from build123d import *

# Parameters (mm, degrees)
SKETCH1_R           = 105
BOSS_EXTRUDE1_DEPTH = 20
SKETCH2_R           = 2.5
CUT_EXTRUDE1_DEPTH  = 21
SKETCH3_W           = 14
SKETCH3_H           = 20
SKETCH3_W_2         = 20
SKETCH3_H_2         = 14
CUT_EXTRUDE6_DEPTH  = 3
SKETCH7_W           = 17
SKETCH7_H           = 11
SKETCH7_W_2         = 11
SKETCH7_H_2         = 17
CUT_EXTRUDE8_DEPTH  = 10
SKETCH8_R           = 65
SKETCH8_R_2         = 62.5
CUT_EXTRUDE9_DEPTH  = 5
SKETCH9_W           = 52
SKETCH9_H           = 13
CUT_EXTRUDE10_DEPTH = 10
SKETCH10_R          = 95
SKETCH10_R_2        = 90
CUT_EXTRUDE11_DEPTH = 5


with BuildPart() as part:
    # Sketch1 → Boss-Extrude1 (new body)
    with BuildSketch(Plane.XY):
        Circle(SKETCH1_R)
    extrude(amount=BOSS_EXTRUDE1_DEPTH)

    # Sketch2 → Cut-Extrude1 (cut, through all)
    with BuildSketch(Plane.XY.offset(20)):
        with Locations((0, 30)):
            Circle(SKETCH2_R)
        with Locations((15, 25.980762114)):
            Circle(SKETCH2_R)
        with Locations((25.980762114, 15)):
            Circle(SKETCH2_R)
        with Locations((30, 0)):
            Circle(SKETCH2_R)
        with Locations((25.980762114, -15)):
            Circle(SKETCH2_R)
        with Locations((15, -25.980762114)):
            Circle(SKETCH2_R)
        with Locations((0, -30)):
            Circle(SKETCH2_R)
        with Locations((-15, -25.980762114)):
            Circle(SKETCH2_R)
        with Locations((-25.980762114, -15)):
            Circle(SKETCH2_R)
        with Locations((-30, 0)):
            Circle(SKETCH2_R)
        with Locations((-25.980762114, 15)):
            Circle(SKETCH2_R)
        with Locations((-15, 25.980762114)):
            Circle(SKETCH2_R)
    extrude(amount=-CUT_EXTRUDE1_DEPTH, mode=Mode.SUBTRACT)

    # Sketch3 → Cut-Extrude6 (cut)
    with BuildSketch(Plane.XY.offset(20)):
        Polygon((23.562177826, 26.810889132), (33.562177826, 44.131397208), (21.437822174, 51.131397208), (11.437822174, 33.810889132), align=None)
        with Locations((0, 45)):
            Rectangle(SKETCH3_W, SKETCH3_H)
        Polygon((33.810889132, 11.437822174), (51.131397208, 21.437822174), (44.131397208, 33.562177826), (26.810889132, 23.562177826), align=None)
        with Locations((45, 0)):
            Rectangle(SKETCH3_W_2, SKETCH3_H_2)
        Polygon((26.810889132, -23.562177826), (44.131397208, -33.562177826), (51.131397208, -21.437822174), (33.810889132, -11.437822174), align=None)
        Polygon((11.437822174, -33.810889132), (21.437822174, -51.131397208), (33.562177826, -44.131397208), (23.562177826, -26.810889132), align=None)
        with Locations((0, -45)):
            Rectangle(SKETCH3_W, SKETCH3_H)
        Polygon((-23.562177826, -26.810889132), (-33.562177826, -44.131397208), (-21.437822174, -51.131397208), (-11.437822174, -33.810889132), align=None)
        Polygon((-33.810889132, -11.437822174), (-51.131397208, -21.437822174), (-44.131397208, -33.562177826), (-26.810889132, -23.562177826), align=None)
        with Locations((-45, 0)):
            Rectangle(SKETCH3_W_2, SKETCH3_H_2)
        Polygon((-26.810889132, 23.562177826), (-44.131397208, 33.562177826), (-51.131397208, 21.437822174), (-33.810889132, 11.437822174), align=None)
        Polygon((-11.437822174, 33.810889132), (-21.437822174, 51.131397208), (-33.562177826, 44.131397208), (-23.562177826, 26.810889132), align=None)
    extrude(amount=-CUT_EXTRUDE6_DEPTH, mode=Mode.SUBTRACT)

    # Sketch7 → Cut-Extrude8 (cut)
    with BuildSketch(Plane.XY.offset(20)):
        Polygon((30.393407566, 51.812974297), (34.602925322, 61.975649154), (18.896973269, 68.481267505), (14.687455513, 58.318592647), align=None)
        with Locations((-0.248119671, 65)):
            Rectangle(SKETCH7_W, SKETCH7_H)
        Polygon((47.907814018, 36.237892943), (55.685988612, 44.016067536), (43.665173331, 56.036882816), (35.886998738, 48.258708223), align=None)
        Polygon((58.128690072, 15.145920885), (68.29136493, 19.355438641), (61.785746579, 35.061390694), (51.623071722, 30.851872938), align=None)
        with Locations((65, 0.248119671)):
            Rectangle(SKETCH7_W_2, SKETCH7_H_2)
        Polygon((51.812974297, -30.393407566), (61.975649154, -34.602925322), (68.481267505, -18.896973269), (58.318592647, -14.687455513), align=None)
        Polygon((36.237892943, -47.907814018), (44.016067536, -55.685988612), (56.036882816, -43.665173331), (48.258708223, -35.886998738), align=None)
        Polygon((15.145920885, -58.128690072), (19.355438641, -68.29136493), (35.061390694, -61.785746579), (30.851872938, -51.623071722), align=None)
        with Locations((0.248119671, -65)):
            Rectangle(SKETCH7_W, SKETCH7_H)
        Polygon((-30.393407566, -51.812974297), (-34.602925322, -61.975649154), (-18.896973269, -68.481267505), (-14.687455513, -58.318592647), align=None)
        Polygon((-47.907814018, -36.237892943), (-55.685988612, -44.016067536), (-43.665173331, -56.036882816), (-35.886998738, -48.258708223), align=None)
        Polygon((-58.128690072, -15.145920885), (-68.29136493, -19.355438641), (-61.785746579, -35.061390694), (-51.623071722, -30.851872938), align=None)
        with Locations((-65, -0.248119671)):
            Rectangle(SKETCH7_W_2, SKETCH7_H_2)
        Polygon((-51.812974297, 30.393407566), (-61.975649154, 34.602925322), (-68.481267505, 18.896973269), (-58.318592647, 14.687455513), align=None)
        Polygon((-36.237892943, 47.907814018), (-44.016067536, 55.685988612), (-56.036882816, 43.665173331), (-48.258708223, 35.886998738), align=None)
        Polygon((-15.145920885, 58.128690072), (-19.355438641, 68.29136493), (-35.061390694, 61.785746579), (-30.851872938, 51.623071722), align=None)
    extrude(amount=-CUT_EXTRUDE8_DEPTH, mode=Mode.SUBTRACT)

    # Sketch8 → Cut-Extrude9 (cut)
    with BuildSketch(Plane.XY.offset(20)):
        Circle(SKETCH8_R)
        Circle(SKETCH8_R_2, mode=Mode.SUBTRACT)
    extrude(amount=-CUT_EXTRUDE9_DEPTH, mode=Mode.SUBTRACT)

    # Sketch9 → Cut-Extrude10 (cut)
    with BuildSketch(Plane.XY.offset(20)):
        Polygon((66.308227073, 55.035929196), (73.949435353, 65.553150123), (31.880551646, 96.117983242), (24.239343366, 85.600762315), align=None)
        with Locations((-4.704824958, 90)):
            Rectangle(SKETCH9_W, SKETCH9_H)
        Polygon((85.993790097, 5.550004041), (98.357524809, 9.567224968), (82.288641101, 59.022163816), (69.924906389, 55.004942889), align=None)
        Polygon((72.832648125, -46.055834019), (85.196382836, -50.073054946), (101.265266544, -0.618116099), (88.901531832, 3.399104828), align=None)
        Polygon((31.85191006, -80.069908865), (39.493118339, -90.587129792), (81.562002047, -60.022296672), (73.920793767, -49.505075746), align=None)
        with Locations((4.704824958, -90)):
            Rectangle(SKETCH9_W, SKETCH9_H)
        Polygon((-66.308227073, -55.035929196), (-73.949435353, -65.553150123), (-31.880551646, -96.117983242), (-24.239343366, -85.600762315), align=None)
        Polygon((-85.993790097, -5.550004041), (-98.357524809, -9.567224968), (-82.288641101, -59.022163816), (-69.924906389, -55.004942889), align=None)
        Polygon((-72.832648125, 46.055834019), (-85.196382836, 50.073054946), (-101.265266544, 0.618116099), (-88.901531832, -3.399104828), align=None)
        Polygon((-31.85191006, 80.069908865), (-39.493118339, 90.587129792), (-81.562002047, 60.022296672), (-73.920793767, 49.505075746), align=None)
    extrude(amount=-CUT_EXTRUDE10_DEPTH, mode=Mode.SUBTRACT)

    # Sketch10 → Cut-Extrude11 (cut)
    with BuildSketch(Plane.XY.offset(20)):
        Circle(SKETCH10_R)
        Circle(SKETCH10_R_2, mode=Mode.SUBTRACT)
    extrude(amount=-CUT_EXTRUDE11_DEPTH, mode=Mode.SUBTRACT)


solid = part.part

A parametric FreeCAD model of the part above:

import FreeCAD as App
import Part
import Sketcher
from FreeCAD import Vector
Q = App.Units.Quantity

doc = App.newDocument("Part")
params = doc.addObject("Spreadsheet::Sheet", "Params")
for row, (alias, value) in enumerate([
    ("sketch1_diameter", "210 mm"),
    ("pad1_length", "20 mm"),
    ("sketch2_diameter", "5 mm"),
    ("sketch3_width", "14 mm"),
    ("sketch3_width2", "20 mm"),
    ("sketch3_length", "20 mm"),
    ("sketch3_length2", "14 mm"),
    ("pocket2_length", "3 mm"),
    ("sketch4_width", "17 mm"),
    ("sketch4_width2", "11 mm"),
    ("sketch4_length", "11 mm"),
    ("sketch4_length2", "17 mm"),
    ("pocket3_length", "10 mm"),
    ("sketch5_diameter", "130 mm"),
    ("sketch5_diameter2", "125 mm"),
    ("pocket4_length", "5 mm"),
    ("sketch6_width", "52 mm"),
    ("sketch6_height", "13 mm"),
    ("sketch6_length", "13 mm"),
    ("sketch6_length2", "52 mm"),
    ("pocket5_length", "10 mm"),
    ("sketch7_diameter", "190 mm"),
    ("sketch7_diameter2", "180 mm"),
    ("pocket6_length", "5 mm"),
], start=1):
    params.set(f"A{row}", alias)
    params.set(f"B{row}", "=" + value)
    params.setAlias(f"B{row}", alias)

body = doc.addObject("PartDesign::Body", "Body")

# Sketch on XY plane
sketch1 = body.newObject("Sketcher::SketchObject", "Sketch")
sketch1.AttachmentSupport = (doc.getObject("XY_Plane"), [""])
sketch1.MapMode = "FlatFace"
sketch1.addGeometry(Part.Circle(Vector(0, 0, 0), Vector(0, 0, 1), 105), False)
sketch1.addConstraint([
    Sketcher.Constraint("Coincident", 0, 3, -1, 1),
    Sketcher.Constraint("Diameter", 0, 210.0),
])
sketch1.setExpression("Constraints[1]", "Params.sketch1_diameter")
pad1 = body.newObject("PartDesign::Pad", "Pad")
pad1.Profile = sketch1
pad1.setExpression("Length", "Params.pad1_length")

# Sketch on XY plane
sketch2 = body.newObject("Sketcher::SketchObject", "Sketch001")
sketch2.AttachmentSupport = (doc.getObject("XY_Plane"), [""])
sketch2.MapMode = "FlatFace"
sketch2.AttachmentOffset = App.Placement(Vector(0, 0, 20), App.Rotation())
sketch2.addGeometry([
    Part.Circle(Vector(0, 30, 0), Vector(0, 0, 1), 2.5),  # 0
    Part.Circle(Vector(15, 26, 0), Vector(0, 0, 1), 2.5),  # 1
    Part.Circle(Vector(26, 15, 0), Vector(0, 0, 1), 2.5),  # 2
    Part.Circle(Vector(30, 0, 0), Vector(0, 0, 1), 2.5),  # 3
    Part.Circle(Vector(26, -15, 0), Vector(0, 0, 1), 2.5),  # 4
    Part.Circle(Vector(15, -26, 0), Vector(0, 0, 1), 2.5),  # 5
    Part.Circle(Vector(0, -30, 0), Vector(0, 0, 1), 2.5),  # 6
    Part.Circle(Vector(-15, -26, 0), Vector(0, 0, 1), 2.5),  # 7
    Part.Circle(Vector(-26, -15, 0), Vector(0, 0, 1), 2.5),  # 8
    Part.Circle(Vector(-30, 0, 0), Vector(0, 0, 1), 2.5),  # 9
    Part.Circle(Vector(-26, 15, 0), Vector(0, 0, 1), 2.5),  # 10
    Part.Circle(Vector(-15, 26, 0), Vector(0, 0, 1), 2.5),  # 11
], False)
sketch2.addConstraint([
    Sketcher.Constraint("Equal", 0, 1),
    Sketcher.Constraint("Equal", 1, 2),
    Sketcher.Constraint("Equal", 2, 3),
    Sketcher.Constraint("Equal", 3, 4),
    Sketcher.Constraint("Equal", 4, 5),
    Sketcher.Constraint("Equal", 5, 6),
    Sketcher.Constraint("Equal", 6, 7),
    Sketcher.Constraint("Equal", 7, 8),
    Sketcher.Constraint("Equal", 8, 9),
    Sketcher.Constraint("Equal", 9, 10),
    Sketcher.Constraint("Equal", 10, 11),
    Sketcher.Constraint("Symmetric", 0, 3, 6, 3, -1, 1),
    Sketcher.Constraint("Symmetric", 1, 3, 7, 3, -1, 1),
    Sketcher.Constraint("Symmetric", 2, 3, 8, 3, -1, 1),
    Sketcher.Constraint("Symmetric", 3, 3, 9, 3, -1, 1),
    Sketcher.Constraint("Symmetric", 4, 3, 10, 3, -1, 1),
    Sketcher.Constraint("Symmetric", 5, 3, 11, 3, -1, 1),
    Sketcher.Constraint("Symmetric", 5, 3, 7, 3, -2),
    Sketcher.Constraint("Symmetric", 4, 3, 8, 3, -2),
    Sketcher.Constraint("PointOnObject", 0, 3, -2),
    Sketcher.Constraint("PointOnObject", 3, 3, -1),
    Sketcher.Constraint("Diameter", 0, 5.0),
    Sketcher.Constraint("DistanceY", -1, 1, 0, 3, 30.0),
    Sketcher.Constraint("DistanceX", -1, 1, 1, 3, 15.0),
    Sketcher.Constraint("DistanceY", -1, 1, 2, 3, 15.0),
    Sketcher.Constraint("DistanceX", -1, 1, 3, 3, 30.0),
    Sketcher.Constraint("DistanceY", -1, 1, 1, 3, 25.980762),
    Sketcher.Constraint("DistanceX", -1, 1, 2, 3, 25.980762),
])
sketch2.setExpression("Constraints[21]", "Params.sketch2_diameter")
pocket1 = body.newObject("PartDesign::Pocket", "Pocket")
pocket1.Profile = sketch2
pocket1.Type = "ThroughAll"

# Sketch on XY plane
sketch3 = body.newObject("Sketcher::SketchObject", "Sketch002")
sketch3.AttachmentSupport = (doc.getObject("XY_Plane"), [""])
sketch3.MapMode = "FlatFace"
sketch3.AttachmentOffset = App.Placement(Vector(0, 0, 20), App.Rotation())
sketch3.addGeometry([
    Part.LineSegment(Vector(24, 27, 0), Vector(34, 44, 0)),  # 0
    Part.LineSegment(Vector(34, 44, 0), Vector(21, 51, 0)),  # 1
    Part.LineSegment(Vector(21, 51, 0), Vector(11, 34, 0)),  # 2
    Part.LineSegment(Vector(11, 34, 0), Vector(24, 27, 0)),  # 3
    Part.LineSegment(Vector(-7, 55, 0), Vector(-7, 35, 0)),  # 4
    Part.LineSegment(Vector(-7, 35, 0), Vector(7, 35, 0)),  # 5
    Part.LineSegment(Vector(7, 35, 0), Vector(7, 55, 0)),  # 6
    Part.LineSegment(Vector(7, 55, 0), Vector(-7, 55, 0)),  # 7
    Part.LineSegment(Vector(34, 11, 0), Vector(51, 21, 0)),  # 8
    Part.LineSegment(Vector(51, 21, 0), Vector(44, 34, 0)),  # 9
    Part.LineSegment(Vector(44, 34, 0), Vector(27, 24, 0)),  # 10
    Part.LineSegment(Vector(27, 24, 0), Vector(34, 11, 0)),  # 11
    Part.LineSegment(Vector(35, 7, 0), Vector(35, -7, 0)),  # 12
    Part.LineSegment(Vector(35, -7, 0), Vector(55, -7, 0)),  # 13
    Part.LineSegment(Vector(55, -7, 0), Vector(55, 7, 0)),  # 14
    Part.LineSegment(Vector(55, 7, 0), Vector(35, 7, 0)),  # 15
    Part.LineSegment(Vector(27, -24, 0), Vector(44, -34, 0)),  # 16
    Part.LineSegment(Vector(44, -34, 0), Vector(51, -21, 0)),  # 17
    Part.LineSegment(Vector(51, -21, 0), Vector(34, -11, 0)),  # 18
    Part.LineSegment(Vector(34, -11, 0), Vector(27, -24, 0)),  # 19
    Part.LineSegment(Vector(11, -34, 0), Vector(21, -51, 0)),  # 20
    Part.LineSegment(Vector(21, -51, 0), Vector(34, -44, 0)),  # 21
    Part.LineSegment(Vector(34, -44, 0), Vector(24, -27, 0)),  # 22
    Part.LineSegment(Vector(24, -27, 0), Vector(11, -34, 0)),  # 23
    Part.LineSegment(Vector(-7, -35, 0), Vector(-7, -55, 0)),  # 24
    Part.LineSegment(Vector(-7, -55, 0), Vector(7, -55, 0)),  # 25
    Part.LineSegment(Vector(7, -55, 0), Vector(7, -35, 0)),  # 26
    Part.LineSegment(Vector(7, -35, 0), Vector(-7, -35, 0)),  # 27
    Part.LineSegment(Vector(-24, -27, 0), Vector(-34, -44, 0)),  # 28
    Part.LineSegment(Vector(-34, -44, 0), Vector(-21, -51, 0)),  # 29
    Part.LineSegment(Vector(-21, -51, 0), Vector(-11, -34, 0)),  # 30
    Part.LineSegment(Vector(-11, -34, 0), Vector(-24, -27, 0)),  # 31
    Part.LineSegment(Vector(-34, -11, 0), Vector(-51, -21, 0)),  # 32
    Part.LineSegment(Vector(-51, -21, 0), Vector(-44, -34, 0)),  # 33
    Part.LineSegment(Vector(-44, -34, 0), Vector(-27, -24, 0)),  # 34
    Part.LineSegment(Vector(-27, -24, 0), Vector(-34, -11, 0)),  # 35
    Part.LineSegment(Vector(-55, 7, 0), Vector(-55, -7, 0)),  # 36
    Part.LineSegment(Vector(-55, -7, 0), Vector(-35, -7, 0)),  # 37
    Part.LineSegment(Vector(-35, -7, 0), Vector(-35, 7, 0)),  # 38
    Part.LineSegment(Vector(-35, 7, 0), Vector(-55, 7, 0)),  # 39
    Part.LineSegment(Vector(-27, 24, 0), Vector(-44, 34, 0)),  # 40
    Part.LineSegment(Vector(-44, 34, 0), Vector(-51, 21, 0)),  # 41
    Part.LineSegment(Vector(-51, 21, 0), Vector(-34, 11, 0)),  # 42
    Part.LineSegment(Vector(-34, 11, 0), Vector(-27, 24, 0)),  # 43
    Part.LineSegment(Vector(-11, 34, 0), Vector(-21, 51, 0)),  # 44
    Part.LineSegment(Vector(-21, 51, 0), Vector(-34, 44, 0)),  # 45
    Part.LineSegment(Vector(-34, 44, 0), Vector(-24, 27, 0)),  # 46
    Part.LineSegment(Vector(-24, 27, 0), Vector(-11, 34, 0)),  # 47
], False)
sketch3.addConstraint([
    Sketcher.Constraint("Coincident", 0, 2, 1, 1),
    Sketcher.Constraint("Coincident", 1, 2, 2, 1),
    Sketcher.Constraint("Coincident", 2, 2, 3, 1),
    Sketcher.Constraint("Coincident", 3, 2, 0, 1),
    Sketcher.Constraint("Coincident", 4, 2, 5, 1),
    Sketcher.Constraint("Coincident", 5, 2, 6, 1),
    Sketcher.Constraint("Coincident", 6, 2, 7, 1),
    Sketcher.Constraint("Coincident", 7, 2, 4, 1),
    Sketcher.Constraint("Coincident", 8, 2, 9, 1),
    Sketcher.Constraint("Coincident", 9, 2, 10, 1),
    Sketcher.Constraint("Coincident", 10, 2, 11, 1),
    Sketcher.Constraint("Coincident", 11, 2, 8, 1),
    Sketcher.Constraint("Coincident", 12, 2, 13, 1),
    Sketcher.Constraint("Coincident", 13, 2, 14, 1),
    Sketcher.Constraint("Coincident", 14, 2, 15, 1),
    Sketcher.Constraint("Coincident", 15, 2, 12, 1),
    Sketcher.Constraint("Coincident", 16, 2, 17, 1),
    Sketcher.Constraint("Coincident", 17, 2, 18, 1),
    Sketcher.Constraint("Coincident", 18, 2, 19, 1),
    Sketcher.Constraint("Coincident", 19, 2, 16, 1),
    Sketcher.Constraint("Coincident", 20, 2, 21, 1),
    Sketcher.Constraint("Coincident", 21, 2, 22, 1),
    Sketcher.Constraint("Coincident", 22, 2, 23, 1),
    Sketcher.Constraint("Coincident", 23, 2, 20, 1),
    Sketcher.Constraint("Coincident", 24, 2, 25, 1),
    Sketcher.Constraint("Coincident", 25, 2, 26, 1),
    Sketcher.Constraint("Coincident", 26, 2, 27, 1),
    Sketcher.Constraint("Coincident", 27, 2, 24, 1),
    Sketcher.Constraint("Coincident", 28, 2, 29, 1),
    Sketcher.Constraint("Coincident", 29, 2, 30, 1),
    Sketcher.Constraint("Coincident", 30, 2, 31, 1),
    Sketcher.Constraint("Coincident", 31, 2, 28, 1),
    Sketcher.Constraint("Coincident", 32, 2, 33, 1),
    Sketcher.Constraint("Coincident", 33, 2, 34, 1),
    Sketcher.Constraint("Coincident", 34, 2, 35, 1),
    Sketcher.Constraint("Coincident", 35, 2, 32, 1),
    Sketcher.Constraint("Coincident", 36, 2, 37, 1),
    Sketcher.Constraint("Coincident", 37, 2, 38, 1),
    Sketcher.Constraint("Coincident", 38, 2, 39, 1),
    Sketcher.Constraint("Coincident", 39, 2, 36, 1),
    Sketcher.Constraint("Coincident", 40, 2, 41, 1),
    Sketcher.Constraint("Coincident", 41, 2, 42, 1),
    Sketcher.Constraint("Coincident", 42, 2, 43, 1),
    Sketcher.Constraint("Coincident", 43, 2, 40, 1),
    Sketcher.Constraint("Coincident", 44, 2, 45, 1),
    Sketcher.Constraint("Coincident", 45, 2, 46, 1),
    Sketcher.Constraint("Coincident", 46, 2, 47, 1),
    Sketcher.Constraint("Coincident", 47, 2, 44, 1),
    Sketcher.Constraint("Vertical", 4),
    Sketcher.Constraint("Horizontal", 5),
    Sketcher.Constraint("Vertical", 6),
    Sketcher.Constraint("Horizontal", 7),
    Sketcher.Constraint("Vertical", 12),
    Sketcher.Constraint("Horizontal", 13),
    Sketcher.Constraint("Vertical", 14),
    Sketcher.Constraint("Horizontal", 15),
    Sketcher.Constraint("Vertical", 24),
    Sketcher.Constraint("Horizontal", 25),
    Sketcher.Constraint("Vertical", 26),
    Sketcher.Constraint("Horizontal", 27),
    Sketcher.Constraint("Vertical", 36),
    Sketcher.Constraint("Horizontal", 37),
    Sketcher.Constraint("Vertical", 38),
    Sketcher.Constraint("Horizontal", 39),
    Sketcher.Constraint("Symmetric", 6, 2, 24, 2, -1, 1),
    Sketcher.Constraint("Symmetric", 4, 2, 26, 2, -1, 1),
    Sketcher.Constraint("Symmetric", 0, 2, 28, 2, -1, 1),
    Sketcher.Constraint("Symmetric", 1, 2, 29, 2, -1, 1),
    Sketcher.Constraint("Symmetric", 2, 2, 30, 2, -1, 1),
    Sketcher.Constraint("Symmetric", 3, 2, 31, 2, -1, 1),
    Sketcher.Constraint("Symmetric", 8, 2, 32, 2, -1, 1),
    Sketcher.Constraint("Symmetric", 9, 2, 33, 2, -1, 1),
    Sketcher.Constraint("Symmetric", 10, 2, 34, 2, -1, 1),
    Sketcher.Constraint("Symmetric", 11, 2, 35, 2, -1, 1),
    Sketcher.Constraint("Symmetric", 14, 2, 36, 2, -1, 1),
    Sketcher.Constraint("Symmetric", 12, 2, 38, 2, -1, 1),
    Sketcher.Constraint("Symmetric", 16, 2, 40, 2, -1, 1),
    Sketcher.Constraint("Symmetric", 17, 2, 41, 2, -1, 1),
    Sketcher.Constraint("Symmetric", 18, 2, 42, 2, -1, 1),
    Sketcher.Constraint("Symmetric", 19, 2, 43, 2, -1, 1),
    Sketcher.Constraint("Symmetric", 20, 2, 44, 2, -1, 1),
    Sketcher.Constraint("Symmetric", 21, 2, 45, 2, -1, 1),
    Sketcher.Constraint("Symmetric", 22, 2, 46, 2, -1, 1),
    Sketcher.Constraint("Symmetric", 23, 2, 47, 2, -1, 1),
    Sketcher.Constraint("Symmetric", 21, 2, 28, 2, -2),
    Sketcher.Constraint("Symmetric", 20, 2, 29, 2, -2),
    Sketcher.Constraint("Symmetric", 23, 2, 30, 2, -2),
    Sketcher.Constraint("Symmetric", 22, 2, 31, 2, -2),
    Sketcher.Constraint("Symmetric", 17, 2, 32, 2, -2),
    Sketcher.Constraint("Symmetric", 16, 2, 33, 2, -2),
    Sketcher.Constraint("Symmetric", 19, 2, 34, 2, -2),
    Sketcher.Constraint("Symmetric", 18, 2, 35, 2, -2),
    Sketcher.Constraint("Perpendicular", 0, 1),
    Sketcher.Constraint("Perpendicular", 1, 2),
    Sketcher.Constraint("Perpendicular", 2, 3),
    Sketcher.Constraint("Perpendicular", 8, 9),
    Sketcher.Constraint("Perpendicular", 9, 10),
    Sketcher.Constraint("Perpendicular", 10, 11),
    Sketcher.Constraint("Parallel", 3, 16),
    Sketcher.Constraint("Horizontal", 13, 2, 36, 2),
    Sketcher.Constraint("Vertical", 7, 2, 24, 2),
    Sketcher.Constraint("Equal", 39, 4),
    Sketcher.Constraint("Equal", 27, 12),
    Sketcher.Constraint("Equal", 2, 8),
    Sketcher.Constraint("Equal", 3, 9),
    Sketcher.Constraint("DistanceX", 5, 1, 5, 2, 14.0),
    Sketcher.Constraint("DistanceX", 13, 1, 13, 2, 20.0),
    Sketcher.Constraint("Angle", 0, Q("60 deg")),
    Sketcher.Constraint("Distance", 0, 20.0),
    Sketcher.Constraint("Distance", 1, 14.0),
    Sketcher.Constraint("DistanceY", -1, 1, 4, 2, 35.0),
    Sketcher.Constraint("DistanceX", -1, 1, 12, 2, 35.0),
    Sketcher.Constraint("DistanceY", 16, 2, 11, 2, 45.0),
    Sketcher.Constraint("DistanceX", 28, 2, 23, 2, 45.0),
    Sketcher.Constraint("DistanceY", -1, 1, 2, 2, 33.810889),
    Sketcher.Constraint("DistanceX", -1, 1, 10, 2, 26.810889),
])
sketch3.setExpression("Constraints[105]", "Params.sketch3_width")
sketch3.setExpression("Constraints[106]", "Params.sketch3_width2")
sketch3.setExpression("Constraints[108]", "Params.sketch3_length")
sketch3.setExpression("Constraints[109]", "Params.sketch3_length2")
pocket2 = body.newObject("PartDesign::Pocket", "Pocket001")
pocket2.Profile = sketch3
pocket2.setExpression("Length", "Params.pocket2_length")

# Sketch on XY plane
sketch4 = body.newObject("Sketcher::SketchObject", "Sketch003")
sketch4.AttachmentSupport = (doc.getObject("XY_Plane"), [""])
sketch4.MapMode = "FlatFace"
sketch4.AttachmentOffset = App.Placement(Vector(0, 0, 20), App.Rotation())
sketch4.addGeometry([
    Part.LineSegment(Vector(30, 52, 0), Vector(35, 62, 0)),  # 0
    Part.LineSegment(Vector(35, 62, 0), Vector(19, 68, 0)),  # 1
    Part.LineSegment(Vector(19, 68, 0), Vector(15, 58, 0)),  # 2
    Part.LineSegment(Vector(15, 58, 0), Vector(30, 52, 0)),  # 3
    Part.LineSegment(Vector(-9, 70, 0), Vector(-9, 60, 0)),  # 4
    Part.LineSegment(Vector(-9, 60, 0), Vector(8, 60, 0)),  # 5
    Part.LineSegment(Vector(8, 60, 0), Vector(8, 70, 0)),  # 6
    Part.LineSegment(Vector(8, 70, 0), Vector(-9, 70, 0)),  # 7
    Part.LineSegment(Vector(48, 36, 0), Vector(56, 44, 0)),  # 8
    Part.LineSegment(Vector(56, 44, 0), Vector(44, 56, 0)),  # 9
    Part.LineSegment(Vector(44, 56, 0), Vector(36, 48, 0)),  # 10
    Part.LineSegment(Vector(36, 48, 0), Vector(48, 36, 0)),  # 11
    Part.LineSegment(Vector(58, 15, 0), Vector(68, 19, 0)),  # 12
    Part.LineSegment(Vector(68, 19, 0), Vector(62, 35, 0)),  # 13
    Part.LineSegment(Vector(62, 35, 0), Vector(52, 31, 0)),  # 14
    Part.LineSegment(Vector(52, 31, 0), Vector(58, 15, 0)),  # 15
    Part.LineSegment(Vector(60, 9, 0), Vector(60, -8, 0)),  # 16
    Part.LineSegment(Vector(60, -8, 0), Vector(70, -8, 0)),  # 17
    Part.LineSegment(Vector(70, -8, 0), Vector(70, 9, 0)),  # 18
    Part.LineSegment(Vector(70, 9, 0), Vector(60, 9, 0)),  # 19
    Part.LineSegment(Vector(52, -30, 0), Vector(62, -35, 0)),  # 20
    Part.LineSegment(Vector(62, -35, 0), Vector(68, -19, 0)),  # 21
    Part.LineSegment(Vector(68, -19, 0), Vector(58, -15, 0)),  # 22
    Part.LineSegment(Vector(58, -15, 0), Vector(52, -30, 0)),  # 23
    Part.LineSegment(Vector(36, -48, 0), Vector(44, -56, 0)),  # 24
    Part.LineSegment(Vector(44, -56, 0), Vector(56, -44, 0)),  # 25
    Part.LineSegment(Vector(56, -44, 0), Vector(48, -36, 0)),  # 26
    Part.LineSegment(Vector(48, -36, 0), Vector(36, -48, 0)),  # 27
    Part.LineSegment(Vector(15, -58, 0), Vector(19, -68, 0)),  # 28
    Part.LineSegment(Vector(19, -68, 0), Vector(35, -62, 0)),  # 29
    Part.LineSegment(Vector(35, -62, 0), Vector(31, -52, 0)),  # 30
    Part.LineSegment(Vector(31, -52, 0), Vector(15, -58, 0)),  # 31
    Part.LineSegment(Vector(-8, -60, 0), Vector(-8, -70, 0)),  # 32
    Part.LineSegment(Vector(-8, -70, 0), Vector(9, -70, 0)),  # 33
    Part.LineSegment(Vector(9, -70, 0), Vector(9, -60, 0)),  # 34
    Part.LineSegment(Vector(9, -60, 0), Vector(-8, -60, 0)),  # 35
    Part.LineSegment(Vector(-30, -52, 0), Vector(-35, -62, 0)),  # 36
    Part.LineSegment(Vector(-35, -62, 0), Vector(-19, -68, 0)),  # 37
    Part.LineSegment(Vector(-19, -68, 0), Vector(-15, -58, 0)),  # 38
    Part.LineSegment(Vector(-15, -58, 0), Vector(-30, -52, 0)),  # 39
    Part.LineSegment(Vector(-48, -36, 0), Vector(-56, -44, 0)),  # 40
    Part.LineSegment(Vector(-56, -44, 0), Vector(-44, -56, 0)),  # 41
    Part.LineSegment(Vector(-44, -56, 0), Vector(-36, -48, 0)),  # 42
    Part.LineSegment(Vector(-36, -48, 0), Vector(-48, -36, 0)),  # 43
    Part.LineSegment(Vector(-58, -15, 0), Vector(-68, -19, 0)),  # 44
    Part.LineSegment(Vector(-68, -19, 0), Vector(-62, -35, 0)),  # 45
    Part.LineSegment(Vector(-62, -35, 0), Vector(-52, -31, 0)),  # 46
    Part.LineSegment(Vector(-52, -31, 0), Vector(-58, -15, 0)),  # 47
    Part.LineSegment(Vector(-70, 8, 0), Vector(-70, -9, 0)),  # 48
    Part.LineSegment(Vector(-70, -9, 0), Vector(-60, -9, 0)),  # 49
    Part.LineSegment(Vector(-60, -9, 0), Vector(-60, 8, 0)),  # 50
    Part.LineSegment(Vector(-60, 8, 0), Vector(-70, 8, 0)),  # 51
    Part.LineSegment(Vector(-52, 30, 0), Vector(-62, 35, 0)),  # 52
    Part.LineSegment(Vector(-62, 35, 0), Vector(-68, 19, 0)),  # 53
    Part.LineSegment(Vector(-68, 19, 0), Vector(-58, 15, 0)),  # 54
    Part.LineSegment(Vector(-58, 15, 0), Vector(-52, 30, 0)),  # 55
    Part.LineSegment(Vector(-36, 48, 0), Vector(-44, 56, 0)),  # 56
    Part.LineSegment(Vector(-44, 56, 0), Vector(-56, 44, 0)),  # 57
    Part.LineSegment(Vector(-56, 44, 0), Vector(-48, 36, 0)),  # 58
    Part.LineSegment(Vector(-48, 36, 0), Vector(-36, 48, 0)),  # 59
    Part.LineSegment(Vector(-15, 58, 0), Vector(-19, 68, 0)),  # 60
    Part.LineSegment(Vector(-19, 68, 0), Vector(-35, 62, 0)),  # 61
    Part.LineSegment(Vector(-35, 62, 0), Vector(-31, 52, 0)),  # 62
    Part.LineSegment(Vector(-31, 52, 0), Vector(-15, 58, 0)),  # 63
], False)
sketch4.addConstraint([
    Sketcher.Constraint("Coincident", 0, 2, 1, 1),
    Sketcher.Constraint("Coincident", 1, 2, 2, 1),
    Sketcher.Constraint("Coincident", 2, 2, 3, 1),
    Sketcher.Constraint("Coincident", 3, 2, 0, 1),
    Sketcher.Constraint("Coincident", 4, 2, 5, 1),
    Sketcher.Constraint("Coincident", 5, 2, 6, 1),
    Sketcher.Constraint("Coincident", 6, 2, 7, 1),
    Sketcher.Constraint("Coincident", 7, 2, 4, 1),
    Sketcher.Constraint("Coincident", 8, 2, 9, 1),
    Sketcher.Constraint("Coincident", 9, 2, 10, 1),
    Sketcher.Constraint("Coincident", 10, 2, 11, 1),
    Sketcher.Constraint("Coincident", 11, 2, 8, 1),
    Sketcher.Constraint("Coincident", 12, 2, 13, 1),
    Sketcher.Constraint("Coincident", 13, 2, 14, 1),
    Sketcher.Constraint("Coincident", 14, 2, 15, 1),
    Sketcher.Constraint("Coincident", 15, 2, 12, 1),
    Sketcher.Constraint("Coincident", 16, 2, 17, 1),
    Sketcher.Constraint("Coincident", 17, 2, 18, 1),
    Sketcher.Constraint("Coincident", 18, 2, 19, 1),
    Sketcher.Constraint("Coincident", 19, 2, 16, 1),
    Sketcher.Constraint("Coincident", 20, 2, 21, 1),
    Sketcher.Constraint("Coincident", 21, 2, 22, 1),
    Sketcher.Constraint("Coincident", 22, 2, 23, 1),
    Sketcher.Constraint("Coincident", 23, 2, 20, 1),
    Sketcher.Constraint("Coincident", 24, 2, 25, 1),
    Sketcher.Constraint("Coincident", 25, 2, 26, 1),
    Sketcher.Constraint("Coincident", 26, 2, 27, 1),
    Sketcher.Constraint("Coincident", 27, 2, 24, 1),
    Sketcher.Constraint("Coincident", 28, 2, 29, 1),
    Sketcher.Constraint("Coincident", 29, 2, 30, 1),
    Sketcher.Constraint("Coincident", 30, 2, 31, 1),
    Sketcher.Constraint("Coincident", 31, 2, 28, 1),
    Sketcher.Constraint("Coincident", 32, 2, 33, 1),
    Sketcher.Constraint("Coincident", 33, 2, 34, 1),
    Sketcher.Constraint("Coincident", 34, 2, 35, 1),
    Sketcher.Constraint("Coincident", 35, 2, 32, 1),
    Sketcher.Constraint("Coincident", 36, 2, 37, 1),
    Sketcher.Constraint("Coincident", 37, 2, 38, 1),
    Sketcher.Constraint("Coincident", 38, 2, 39, 1),
    Sketcher.Constraint("Coincident", 39, 2, 36, 1),
    Sketcher.Constraint("Coincident", 40, 2, 41, 1),
    Sketcher.Constraint("Coincident", 41, 2, 42, 1),
    Sketcher.Constraint("Coincident", 42, 2, 43, 1),
    Sketcher.Constraint("Coincident", 43, 2, 40, 1),
    Sketcher.Constraint("Coincident", 44, 2, 45, 1),
    Sketcher.Constraint("Coincident", 45, 2, 46, 1),
    Sketcher.Constraint("Coincident", 46, 2, 47, 1),
    Sketcher.Constraint("Coincident", 47, 2, 44, 1),
    Sketcher.Constraint("Coincident", 48, 2, 49, 1),
    Sketcher.Constraint("Coincident", 49, 2, 50, 1),
    Sketcher.Constraint("Coincident", 50, 2, 51, 1),
    Sketcher.Constraint("Coincident", 51, 2, 48, 1),
    Sketcher.Constraint("Coincident", 52, 2, 53, 1),
    Sketcher.Constraint("Coincident", 53, 2, 54, 1),
    Sketcher.Constraint("Coincident", 54, 2, 55, 1),
    Sketcher.Constraint("Coincident", 55, 2, 52, 1),
    Sketcher.Constraint("Coincident", 56, 2, 57, 1),
    Sketcher.Constraint("Coincident", 57, 2, 58, 1),
    Sketcher.Constraint("Coincident", 58, 2, 59, 1),
    Sketcher.Constraint("Coincident", 59, 2, 56, 1),
    Sketcher.Constraint("Coincident", 60, 2, 61, 1),
    Sketcher.Constraint("Coincident", 61, 2, 62, 1),
    Sketcher.Constraint("Coincident", 62, 2, 63, 1),
    Sketcher.Constraint("Coincident", 63, 2, 60, 1),
    Sketcher.Constraint("Vertical", 4),
    Sketcher.Constraint("Horizontal", 5),
    Sketcher.Constraint("Vertical", 6),
    Sketcher.Constraint("Horizontal", 7),
    Sketcher.Constraint("Vertical", 16),
    Sketcher.Constraint("Horizontal", 17),
    Sketcher.Constraint("Vertical", 18),
    Sketcher.Constraint("Horizontal", 19),
    Sketcher.Constraint("Vertical", 32),
    Sketcher.Constraint("Horizontal", 33),
    Sketcher.Constraint("Vertical", 34),
    Sketcher.Constraint("Horizontal", 35),
    Sketcher.Constraint("Vertical", 48),
    Sketcher.Constraint("Horizontal", 49),
    Sketcher.Constraint("Vertical", 50),
    Sketcher.Constraint("Horizontal", 51),
    Sketcher.Constraint("Symmetric", 6, 2, 32, 2, -1, 1),
    Sketcher.Constraint("Symmetric", 4, 2, 34, 2, -1, 1),
    Sketcher.Constraint("Symmetric", 0, 2, 36, 2, -1, 1),
    Sketcher.Constraint("Symmetric", 1, 2, 37, 2, -1, 1),
    Sketcher.Constraint("Symmetric", 2, 2, 38, 2, -1, 1),
    Sketcher.Constraint("Symmetric", 3, 2, 39, 2, -1, 1),
    Sketcher.Constraint("Symmetric", 8, 2, 40, 2, -1, 1),
    Sketcher.Constraint("Symmetric", 9, 2, 41, 2, -1, 1),
    Sketcher.Constraint("Symmetric", 10, 2, 42, 2, -1, 1),
    Sketcher.Constraint("Symmetric", 11, 2, 43, 2, -1, 1),
    Sketcher.Constraint("Symmetric", 12, 2, 44, 2, -1, 1),
    Sketcher.Constraint("Symmetric", 13, 2, 45, 2, -1, 1),
    Sketcher.Constraint("Symmetric", 14, 2, 46, 2, -1, 1),
    Sketcher.Constraint("Symmetric", 15, 2, 47, 2, -1, 1),
    Sketcher.Constraint("Symmetric", 18, 2, 48, 2, -1, 1),
    Sketcher.Constraint("Symmetric", 16, 2, 50, 2, -1, 1),
    Sketcher.Constraint("Symmetric", 20, 2, 52, 2, -1, 1),
    Sketcher.Constraint("Symmetric", 21, 2, 53, 2, -1, 1),
    Sketcher.Constraint("Symmetric", 22, 2, 54, 2, -1, 1),
    Sketcher.Constraint("Symmetric", 23, 2, 55, 2, -1, 1),
    Sketcher.Constraint("Symmetric", 24, 2, 56, 2, -1, 1),
    Sketcher.Constraint("Symmetric", 25, 2, 57, 2, -1, 1),
    Sketcher.Constraint("Symmetric", 26, 2, 58, 2, -1, 1),
    Sketcher.Constraint("Symmetric", 27, 2, 59, 2, -1, 1),
    Sketcher.Constraint("Symmetric", 28, 2, 60, 2, -1, 1),
    Sketcher.Constraint("Symmetric", 29, 2, 61, 2, -1, 1),
    Sketcher.Constraint("Symmetric", 30, 2, 62, 2, -1, 1),
    Sketcher.Constraint("Symmetric", 31, 2, 63, 2, -1, 1),
    Sketcher.Constraint("Perpendicular", 0, 1),
    Sketcher.Constraint("Perpendicular", 1, 2),
    Sketcher.Constraint("Perpendicular", 2, 3),
    Sketcher.Constraint("Perpendicular", 8, 9),
    Sketcher.Constraint("Perpendicular", 9, 10),
    Sketcher.Constraint("Perpendicular", 10, 11),
    Sketcher.Constraint("Perpendicular", 12, 13),
    Sketcher.Constraint("Perpendicular", 13, 14),
    Sketcher.Constraint("Perpendicular", 14, 15),
    Sketcher.Constraint("Parallel", 3, 20),
    Sketcher.Constraint("Perpendicular", 20, 21),
    Sketcher.Constraint("Perpendicular", 21, 22),
    Sketcher.Constraint("Perpendicular", 22, 23),
    Sketcher.Constraint("Parallel", 11, 24),
    Sketcher.Constraint("Perpendicular", 24, 25),
    Sketcher.Constraint("Perpendicular", 25, 26),
    Sketcher.Constraint("Perpendicular", 26, 27),
    Sketcher.Constraint("Parallel", 15, 28),
    Sketcher.Constraint("Perpendicular", 28, 29),
    Sketcher.Constraint("Perpendicular", 29, 30),
    Sketcher.Constraint("Perpendicular", 30, 31),
    Sketcher.Constraint("Equal", 51, 4),
    Sketcher.Constraint("Equal", 35, 16),
    Sketcher.Constraint("Equal", 2, 8),
    Sketcher.Constraint("Equal", 3, 9),
    Sketcher.Constraint("Equal", 10, 12),
    Sketcher.Constraint("Equal", 11, 13),
    Sketcher.Constraint("Equal", 14, 20),
    Sketcher.Constraint("Equal", 15, 21),
    Sketcher.Constraint("Equal", 22, 24),
    Sketcher.Constraint("Equal", 23, 25),
    Sketcher.Constraint("Equal", 26, 28),
    Sketcher.Constraint("Equal", 27, 29),
    Sketcher.Constraint("DistanceX", 5, 1, 5, 2, 17.0),
    Sketcher.Constraint("DistanceX", 17, 1, 17, 2, 11.0),
    Sketcher.Constraint("Angle", 8, Q("45 deg")),
    Sketcher.Constraint("Distance", 0, 11.0),
    Sketcher.Constraint("Distance", 1, 17.0),
    Sketcher.Constraint("Angle", 0, Q("67.5 deg")),
    Sketcher.Constraint("Angle", 12, Q("22.5 deg")),
    Sketcher.Constraint("DistanceY", -1, 1, 4, 2, 59.5),
    Sketcher.Constraint("DistanceX", -1, 1, 16, 2, 59.5),
    Sketcher.Constraint("DistanceX", -1, 1, 10, 2, 35.886999),
    Sketcher.Constraint("DistanceY", 26, 2, -1, 1, 35.886999),
    Sketcher.Constraint("DistanceY", -1, 1, 0, 2, 61.975649),
    Sketcher.Constraint("DistanceX", 4, 2, -1, 1, 8.74812),
    Sketcher.Constraint("DistanceY", -1, 1, 10, 2, 48.258708),
    Sketcher.Constraint("DistanceY", -1, 1, 12, 2, 19.355439),
    Sketcher.Constraint("DistanceX", -1, 1, 14, 2, 51.623072),
    Sketcher.Constraint("DistanceY", 16, 2, -1, 1, 8.25188),
    Sketcher.Constraint("DistanceX", -1, 1, 20, 2, 61.975649),
    Sketcher.Constraint("DistanceX", -1, 1, 26, 2, 48.258708),
    Sketcher.Constraint("DistanceX", -1, 1, 28, 2, 19.355439),
    Sketcher.Constraint("DistanceY", 30, 2, -1, 1, 51.623072),
    Sketcher.Constraint("DistanceX", -1, 1, 0, 2, 34.602925),
    Sketcher.Constraint("DistanceY", 20, 2, -1, 1, 34.602925),
])
sketch4.setExpression("Constraints[141]", "Params.sketch4_width")
sketch4.setExpression("Constraints[142]", "Params.sketch4_width2")
sketch4.setExpression("Constraints[144]", "Params.sketch4_length")
sketch4.setExpression("Constraints[145]", "Params.sketch4_length2")
pocket3 = body.newObject("PartDesign::Pocket", "Pocket002")
pocket3.Profile = sketch4
pocket3.setExpression("Length", "Params.pocket3_length")

# Sketch on XY plane
sketch5 = body.newObject("Sketcher::SketchObject", "Sketch004")
sketch5.AttachmentSupport = (doc.getObject("XY_Plane"), [""])
sketch5.MapMode = "FlatFace"
sketch5.AttachmentOffset = App.Placement(Vector(0, 0, 20), App.Rotation())
sketch5.addGeometry([
    Part.Circle(Vector(0, 0, 0), Vector(0, 0, 1), 65),
    Part.Circle(Vector(0, 0, 0), Vector(0, 0, 1), 62),
], False)
sketch5.addConstraint([
    Sketcher.Constraint("Coincident", 0, 3, -1, 1),
    Sketcher.Constraint("Coincident", 1, 3, -1, 1),
    Sketcher.Constraint("Diameter", 0, 130.0),
    Sketcher.Constraint("Diameter", 1, 125.0),
])
sketch5.setExpression("Constraints[2]", "Params.sketch5_diameter")
sketch5.setExpression("Constraints[3]", "Params.sketch5_diameter2")
pocket4 = body.newObject("PartDesign::Pocket", "Pocket003")
pocket4.Profile = sketch5
pocket4.setExpression("Length", "Params.pocket4_length")

# Sketch on XY plane
sketch6 = body.newObject("Sketcher::SketchObject", "Sketch005")
sketch6.AttachmentSupport = (doc.getObject("XY_Plane"), [""])
sketch6.MapMode = "FlatFace"
sketch6.AttachmentOffset = App.Placement(Vector(0, 0, 20), App.Rotation())
sketch6.addGeometry([
    Part.LineSegment(Vector(66, 55, 0), Vector(74, 66, 0)),  # 0
    Part.LineSegment(Vector(74, 66, 0), Vector(32, 96, 0)),  # 1
    Part.LineSegment(Vector(32, 96, 0), Vector(24, 86, 0)),  # 2
    Part.LineSegment(Vector(24, 86, 0), Vector(66, 55, 0)),  # 3
    Part.LineSegment(Vector(-31, 96, 0), Vector(-31, 84, 0)),  # 4
    Part.LineSegment(Vector(-31, 84, 0), Vector(21, 84, 0)),  # 5
    Part.LineSegment(Vector(21, 84, 0), Vector(21, 96, 0)),  # 6
    Part.LineSegment(Vector(21, 96, 0), Vector(-31, 96, 0)),  # 7
    Part.LineSegment(Vector(86, 6, 0), Vector(98, 10, 0)),  # 8
    Part.LineSegment(Vector(98, 10, 0), Vector(82, 59, 0)),  # 9
    Part.LineSegment(Vector(82, 59, 0), Vector(70, 55, 0)),  # 10
    Part.LineSegment(Vector(70, 55, 0), Vector(86, 6, 0)),  # 11
    Part.LineSegment(Vector(73, -46, 0), Vector(85, -50, 0)),  # 12
    Part.LineSegment(Vector(85, -50, 0), Vector(101, -1, 0)),  # 13
    Part.LineSegment(Vector(101, -1, 0), Vector(89, 3, 0)),  # 14
    Part.LineSegment(Vector(89, 3, 0), Vector(73, -46, 0)),  # 15
    Part.LineSegment(Vector(32, -80, 0), Vector(39, -91, 0)),  # 16
    Part.LineSegment(Vector(39, -91, 0), Vector(82, -60, 0)),  # 17
    Part.LineSegment(Vector(82, -60, 0), Vector(74, -50, 0)),  # 18
    Part.LineSegment(Vector(74, -50, 0), Vector(32, -80, 0)),  # 19
    Part.LineSegment(Vector(-21, -84, 0), Vector(-21, -96, 0)),  # 20
    Part.LineSegment(Vector(-21, -96, 0), Vector(31, -96, 0)),  # 21
    Part.LineSegment(Vector(31, -96, 0), Vector(31, -84, 0)),  # 22
    Part.LineSegment(Vector(31, -84, 0), Vector(-21, -84, 0)),  # 23
    Part.LineSegment(Vector(-66, -55, 0), Vector(-74, -66, 0)),  # 24
    Part.LineSegment(Vector(-74, -66, 0), Vector(-32, -96, 0)),  # 25
    Part.LineSegment(Vector(-32, -96, 0), Vector(-24, -86, 0)),  # 26
    Part.LineSegment(Vector(-24, -86, 0), Vector(-66, -55, 0)),  # 27
    Part.LineSegment(Vector(-86, -6, 0), Vector(-98, -10, 0)),  # 28
    Part.LineSegment(Vector(-98, -10, 0), Vector(-82, -59, 0)),  # 29
    Part.LineSegment(Vector(-82, -59, 0), Vector(-70, -55, 0)),  # 30
    Part.LineSegment(Vector(-70, -55, 0), Vector(-86, -6, 0)),  # 31
    Part.LineSegment(Vector(-73, 46, 0), Vector(-85, 50, 0)),  # 32
    Part.LineSegment(Vector(-85, 50, 0), Vector(-101, 1, 0)),  # 33
    Part.LineSegment(Vector(-101, 1, 0), Vector(-89, -3, 0)),  # 34
    Part.LineSegment(Vector(-89, -3, 0), Vector(-73, 46, 0)),  # 35
    Part.LineSegment(Vector(-32, 80, 0), Vector(-39, 91, 0)),  # 36
    Part.LineSegment(Vector(-39, 91, 0), Vector(-82, 60, 0)),  # 37
    Part.LineSegment(Vector(-82, 60, 0), Vector(-74, 50, 0)),  # 38
    Part.LineSegment(Vector(-74, 50, 0), Vector(-32, 80, 0)),  # 39
], False)
sketch6.addConstraint([
    Sketcher.Constraint("Coincident", 0, 2, 1, 1),
    Sketcher.Constraint("Coincident", 1, 2, 2, 1),
    Sketcher.Constraint("Coincident", 2, 2, 3, 1),
    Sketcher.Constraint("Coincident", 3, 2, 0, 1),
    Sketcher.Constraint("Coincident", 4, 2, 5, 1),
    Sketcher.Constraint("Coincident", 5, 2, 6, 1),
    Sketcher.Constraint("Coincident", 6, 2, 7, 1),
    Sketcher.Constraint("Coincident", 7, 2, 4, 1),
    Sketcher.Constraint("Coincident", 8, 2, 9, 1),
    Sketcher.Constraint("Coincident", 9, 2, 10, 1),
    Sketcher.Constraint("Coincident", 10, 2, 11, 1),
    Sketcher.Constraint("Coincident", 11, 2, 8, 1),
    Sketcher.Constraint("Coincident", 12, 2, 13, 1),
    Sketcher.Constraint("Coincident", 13, 2, 14, 1),
    Sketcher.Constraint("Coincident", 14, 2, 15, 1),
    Sketcher.Constraint("Coincident", 15, 2, 12, 1),
    Sketcher.Constraint("Coincident", 16, 2, 17, 1),
    Sketcher.Constraint("Coincident", 17, 2, 18, 1),
    Sketcher.Constraint("Coincident", 18, 2, 19, 1),
    Sketcher.Constraint("Coincident", 19, 2, 16, 1),
    Sketcher.Constraint("Coincident", 20, 2, 21, 1),
    Sketcher.Constraint("Coincident", 21, 2, 22, 1),
    Sketcher.Constraint("Coincident", 22, 2, 23, 1),
    Sketcher.Constraint("Coincident", 23, 2, 20, 1),
    Sketcher.Constraint("Coincident", 24, 2, 25, 1),
    Sketcher.Constraint("Coincident", 25, 2, 26, 1),
    Sketcher.Constraint("Coincident", 26, 2, 27, 1),
    Sketcher.Constraint("Coincident", 27, 2, 24, 1),
    Sketcher.Constraint("Coincident", 28, 2, 29, 1),
    Sketcher.Constraint("Coincident", 29, 2, 30, 1),
    Sketcher.Constraint("Coincident", 30, 2, 31, 1),
    Sketcher.Constraint("Coincident", 31, 2, 28, 1),
    Sketcher.Constraint("Coincident", 32, 2, 33, 1),
    Sketcher.Constraint("Coincident", 33, 2, 34, 1),
    Sketcher.Constraint("Coincident", 34, 2, 35, 1),
    Sketcher.Constraint("Coincident", 35, 2, 32, 1),
    Sketcher.Constraint("Coincident", 36, 2, 37, 1),
    Sketcher.Constraint("Coincident", 37, 2, 38, 1),
    Sketcher.Constraint("Coincident", 38, 2, 39, 1),
    Sketcher.Constraint("Coincident", 39, 2, 36, 1),
    Sketcher.Constraint("Vertical", 4),
    Sketcher.Constraint("Horizontal", 5),
    Sketcher.Constraint("Vertical", 6),
    Sketcher.Constraint("Horizontal", 7),
    Sketcher.Constraint("Vertical", 20),
    Sketcher.Constraint("Horizontal", 21),
    Sketcher.Constraint("Vertical", 22),
    Sketcher.Constraint("Horizontal", 23),
    Sketcher.Constraint("Symmetric", 6, 2, 20, 2, -1, 1),
    Sketcher.Constraint("Symmetric", 4, 2, 22, 2, -1, 1),
    Sketcher.Constraint("Symmetric", 0, 2, 24, 2, -1, 1),
    Sketcher.Constraint("Symmetric", 1, 2, 25, 2, -1, 1),
    Sketcher.Constraint("Symmetric", 2, 2, 26, 2, -1, 1),
    Sketcher.Constraint("Symmetric", 3, 2, 27, 2, -1, 1),
    Sketcher.Constraint("Symmetric", 8, 2, 28, 2, -1, 1),
    Sketcher.Constraint("Symmetric", 9, 2, 29, 2, -1, 1),
    Sketcher.Constraint("Symmetric", 10, 2, 30, 2, -1, 1),
    Sketcher.Constraint("Symmetric", 11, 2, 31, 2, -1, 1),
    Sketcher.Constraint("Symmetric", 12, 2, 32, 2, -1, 1),
    Sketcher.Constraint("Symmetric", 13, 2, 33, 2, -1, 1),
    Sketcher.Constraint("Symmetric", 14, 2, 34, 2, -1, 1),
    Sketcher.Constraint("Symmetric", 15, 2, 35, 2, -1, 1),
    Sketcher.Constraint("Symmetric", 16, 2, 36, 2, -1, 1),
    Sketcher.Constraint("Symmetric", 17, 2, 37, 2, -1, 1),
    Sketcher.Constraint("Symmetric", 18, 2, 38, 2, -1, 1),
    Sketcher.Constraint("Symmetric", 19, 2, 39, 2, -1, 1),
    Sketcher.Constraint("Perpendicular", 0, 1),
    Sketcher.Constraint("Perpendicular", 1, 2),
    Sketcher.Constraint("Perpendicular", 2, 3),
    Sketcher.Constraint("Perpendicular", 8, 9),
    Sketcher.Constraint("Perpendicular", 9, 10),
    Sketcher.Constraint("Perpendicular", 10, 11),
    Sketcher.Constraint("Perpendicular", 12, 13),
    Sketcher.Constraint("Perpendicular", 13, 14),
    Sketcher.Constraint("Perpendicular", 14, 15),
    Sketcher.Constraint("Perpendicular", 16, 17),
    Sketcher.Constraint("Perpendicular", 17, 18),
    Sketcher.Constraint("Perpendicular", 18, 19),
    Sketcher.Constraint("Equal", 2, 8),
    Sketcher.Constraint("Equal", 3, 9),
    Sketcher.Constraint("Equal", 10, 12),
    Sketcher.Constraint("Equal", 11, 13),
    Sketcher.Constraint("Equal", 14, 16),
    Sketcher.Constraint("Equal", 15, 17),
    Sketcher.Constraint("DistanceX", 5, 1, 5, 2, 52.0),
    Sketcher.Constraint("DistanceY", 4, 2, 4, 1, 13.0),
    Sketcher.Constraint("Angle", 0, Q("54 deg")),
    Sketcher.Constraint("Angle", 8, Q("18 deg")),
    Sketcher.Constraint("Angle", 12, Q("-18 deg")),
    Sketcher.Constraint("Angle", 16, Q("-54 deg")),
    Sketcher.Constraint("Distance", 0, 13.0),
    Sketcher.Constraint("Distance", 1, 52.0),
    Sketcher.Constraint("DistanceY", -1, 1, 4, 2, 83.5),
    Sketcher.Constraint("DistanceY", 9, 2, 2, 2, 26.578598),
    Sketcher.Constraint("DistanceY", 14, 2, 11, 2, 2.150899),
    Sketcher.Constraint("DistanceY", 17, 2, 14, 2, 63.421402),
    Sketcher.Constraint("DistanceY", -1, 1, 0, 2, 65.55315),
    Sketcher.Constraint("DistanceX", -1, 1, 1, 2, 31.880552),
    Sketcher.Constraint("DistanceX", -1, 1, 9, 2, 82.288641),
    Sketcher.Constraint("DistanceX", -1, 1, 14, 2, 88.901532),
    Sketcher.Constraint("DistanceX", -1, 1, 16, 2, 39.493118),
    Sketcher.Constraint("DistanceX", 4, 2, 2, 2, 54.944168),
])
sketch6.setExpression("Constraints[84]", "Params.sketch6_width")
sketch6.setExpression("Constraints[85]", "Params.sketch6_height")
sketch6.setExpression("Constraints[90]", "Params.sketch6_length")
sketch6.setExpression("Constraints[91]", "Params.sketch6_length2")
pocket5 = body.newObject("PartDesign::Pocket", "Pocket004")
pocket5.Profile = sketch6
pocket5.setExpression("Length", "Params.pocket5_length")

# Sketch on XY plane
sketch7 = body.newObject("Sketcher::SketchObject", "Sketch006")
sketch7.AttachmentSupport = (doc.getObject("XY_Plane"), [""])
sketch7.MapMode = "FlatFace"
sketch7.AttachmentOffset = App.Placement(Vector(0, 0, 20), App.Rotation())
sketch7.addGeometry([
    Part.Circle(Vector(0, 0, 0), Vector(0, 0, 1), 95),
    Part.Circle(Vector(0, 0, 0), Vector(0, 0, 1), 90),
], False)
sketch7.addConstraint([
    Sketcher.Constraint("Coincident", 0, 3, -1, 1),
    Sketcher.Constraint("Coincident", 1, 3, -1, 1),
    Sketcher.Constraint("Diameter", 0, 190.0),
    Sketcher.Constraint("Diameter", 1, 180.0),
])
sketch7.setExpression("Constraints[2]", "Params.sketch7_diameter")
sketch7.setExpression("Constraints[3]", "Params.sketch7_diameter2")
pocket6 = body.newObject("PartDesign::Pocket", "Pocket005")
pocket6.Profile = sketch7
pocket6.setExpression("Length", "Params.pocket6_length")

doc.recompute()
